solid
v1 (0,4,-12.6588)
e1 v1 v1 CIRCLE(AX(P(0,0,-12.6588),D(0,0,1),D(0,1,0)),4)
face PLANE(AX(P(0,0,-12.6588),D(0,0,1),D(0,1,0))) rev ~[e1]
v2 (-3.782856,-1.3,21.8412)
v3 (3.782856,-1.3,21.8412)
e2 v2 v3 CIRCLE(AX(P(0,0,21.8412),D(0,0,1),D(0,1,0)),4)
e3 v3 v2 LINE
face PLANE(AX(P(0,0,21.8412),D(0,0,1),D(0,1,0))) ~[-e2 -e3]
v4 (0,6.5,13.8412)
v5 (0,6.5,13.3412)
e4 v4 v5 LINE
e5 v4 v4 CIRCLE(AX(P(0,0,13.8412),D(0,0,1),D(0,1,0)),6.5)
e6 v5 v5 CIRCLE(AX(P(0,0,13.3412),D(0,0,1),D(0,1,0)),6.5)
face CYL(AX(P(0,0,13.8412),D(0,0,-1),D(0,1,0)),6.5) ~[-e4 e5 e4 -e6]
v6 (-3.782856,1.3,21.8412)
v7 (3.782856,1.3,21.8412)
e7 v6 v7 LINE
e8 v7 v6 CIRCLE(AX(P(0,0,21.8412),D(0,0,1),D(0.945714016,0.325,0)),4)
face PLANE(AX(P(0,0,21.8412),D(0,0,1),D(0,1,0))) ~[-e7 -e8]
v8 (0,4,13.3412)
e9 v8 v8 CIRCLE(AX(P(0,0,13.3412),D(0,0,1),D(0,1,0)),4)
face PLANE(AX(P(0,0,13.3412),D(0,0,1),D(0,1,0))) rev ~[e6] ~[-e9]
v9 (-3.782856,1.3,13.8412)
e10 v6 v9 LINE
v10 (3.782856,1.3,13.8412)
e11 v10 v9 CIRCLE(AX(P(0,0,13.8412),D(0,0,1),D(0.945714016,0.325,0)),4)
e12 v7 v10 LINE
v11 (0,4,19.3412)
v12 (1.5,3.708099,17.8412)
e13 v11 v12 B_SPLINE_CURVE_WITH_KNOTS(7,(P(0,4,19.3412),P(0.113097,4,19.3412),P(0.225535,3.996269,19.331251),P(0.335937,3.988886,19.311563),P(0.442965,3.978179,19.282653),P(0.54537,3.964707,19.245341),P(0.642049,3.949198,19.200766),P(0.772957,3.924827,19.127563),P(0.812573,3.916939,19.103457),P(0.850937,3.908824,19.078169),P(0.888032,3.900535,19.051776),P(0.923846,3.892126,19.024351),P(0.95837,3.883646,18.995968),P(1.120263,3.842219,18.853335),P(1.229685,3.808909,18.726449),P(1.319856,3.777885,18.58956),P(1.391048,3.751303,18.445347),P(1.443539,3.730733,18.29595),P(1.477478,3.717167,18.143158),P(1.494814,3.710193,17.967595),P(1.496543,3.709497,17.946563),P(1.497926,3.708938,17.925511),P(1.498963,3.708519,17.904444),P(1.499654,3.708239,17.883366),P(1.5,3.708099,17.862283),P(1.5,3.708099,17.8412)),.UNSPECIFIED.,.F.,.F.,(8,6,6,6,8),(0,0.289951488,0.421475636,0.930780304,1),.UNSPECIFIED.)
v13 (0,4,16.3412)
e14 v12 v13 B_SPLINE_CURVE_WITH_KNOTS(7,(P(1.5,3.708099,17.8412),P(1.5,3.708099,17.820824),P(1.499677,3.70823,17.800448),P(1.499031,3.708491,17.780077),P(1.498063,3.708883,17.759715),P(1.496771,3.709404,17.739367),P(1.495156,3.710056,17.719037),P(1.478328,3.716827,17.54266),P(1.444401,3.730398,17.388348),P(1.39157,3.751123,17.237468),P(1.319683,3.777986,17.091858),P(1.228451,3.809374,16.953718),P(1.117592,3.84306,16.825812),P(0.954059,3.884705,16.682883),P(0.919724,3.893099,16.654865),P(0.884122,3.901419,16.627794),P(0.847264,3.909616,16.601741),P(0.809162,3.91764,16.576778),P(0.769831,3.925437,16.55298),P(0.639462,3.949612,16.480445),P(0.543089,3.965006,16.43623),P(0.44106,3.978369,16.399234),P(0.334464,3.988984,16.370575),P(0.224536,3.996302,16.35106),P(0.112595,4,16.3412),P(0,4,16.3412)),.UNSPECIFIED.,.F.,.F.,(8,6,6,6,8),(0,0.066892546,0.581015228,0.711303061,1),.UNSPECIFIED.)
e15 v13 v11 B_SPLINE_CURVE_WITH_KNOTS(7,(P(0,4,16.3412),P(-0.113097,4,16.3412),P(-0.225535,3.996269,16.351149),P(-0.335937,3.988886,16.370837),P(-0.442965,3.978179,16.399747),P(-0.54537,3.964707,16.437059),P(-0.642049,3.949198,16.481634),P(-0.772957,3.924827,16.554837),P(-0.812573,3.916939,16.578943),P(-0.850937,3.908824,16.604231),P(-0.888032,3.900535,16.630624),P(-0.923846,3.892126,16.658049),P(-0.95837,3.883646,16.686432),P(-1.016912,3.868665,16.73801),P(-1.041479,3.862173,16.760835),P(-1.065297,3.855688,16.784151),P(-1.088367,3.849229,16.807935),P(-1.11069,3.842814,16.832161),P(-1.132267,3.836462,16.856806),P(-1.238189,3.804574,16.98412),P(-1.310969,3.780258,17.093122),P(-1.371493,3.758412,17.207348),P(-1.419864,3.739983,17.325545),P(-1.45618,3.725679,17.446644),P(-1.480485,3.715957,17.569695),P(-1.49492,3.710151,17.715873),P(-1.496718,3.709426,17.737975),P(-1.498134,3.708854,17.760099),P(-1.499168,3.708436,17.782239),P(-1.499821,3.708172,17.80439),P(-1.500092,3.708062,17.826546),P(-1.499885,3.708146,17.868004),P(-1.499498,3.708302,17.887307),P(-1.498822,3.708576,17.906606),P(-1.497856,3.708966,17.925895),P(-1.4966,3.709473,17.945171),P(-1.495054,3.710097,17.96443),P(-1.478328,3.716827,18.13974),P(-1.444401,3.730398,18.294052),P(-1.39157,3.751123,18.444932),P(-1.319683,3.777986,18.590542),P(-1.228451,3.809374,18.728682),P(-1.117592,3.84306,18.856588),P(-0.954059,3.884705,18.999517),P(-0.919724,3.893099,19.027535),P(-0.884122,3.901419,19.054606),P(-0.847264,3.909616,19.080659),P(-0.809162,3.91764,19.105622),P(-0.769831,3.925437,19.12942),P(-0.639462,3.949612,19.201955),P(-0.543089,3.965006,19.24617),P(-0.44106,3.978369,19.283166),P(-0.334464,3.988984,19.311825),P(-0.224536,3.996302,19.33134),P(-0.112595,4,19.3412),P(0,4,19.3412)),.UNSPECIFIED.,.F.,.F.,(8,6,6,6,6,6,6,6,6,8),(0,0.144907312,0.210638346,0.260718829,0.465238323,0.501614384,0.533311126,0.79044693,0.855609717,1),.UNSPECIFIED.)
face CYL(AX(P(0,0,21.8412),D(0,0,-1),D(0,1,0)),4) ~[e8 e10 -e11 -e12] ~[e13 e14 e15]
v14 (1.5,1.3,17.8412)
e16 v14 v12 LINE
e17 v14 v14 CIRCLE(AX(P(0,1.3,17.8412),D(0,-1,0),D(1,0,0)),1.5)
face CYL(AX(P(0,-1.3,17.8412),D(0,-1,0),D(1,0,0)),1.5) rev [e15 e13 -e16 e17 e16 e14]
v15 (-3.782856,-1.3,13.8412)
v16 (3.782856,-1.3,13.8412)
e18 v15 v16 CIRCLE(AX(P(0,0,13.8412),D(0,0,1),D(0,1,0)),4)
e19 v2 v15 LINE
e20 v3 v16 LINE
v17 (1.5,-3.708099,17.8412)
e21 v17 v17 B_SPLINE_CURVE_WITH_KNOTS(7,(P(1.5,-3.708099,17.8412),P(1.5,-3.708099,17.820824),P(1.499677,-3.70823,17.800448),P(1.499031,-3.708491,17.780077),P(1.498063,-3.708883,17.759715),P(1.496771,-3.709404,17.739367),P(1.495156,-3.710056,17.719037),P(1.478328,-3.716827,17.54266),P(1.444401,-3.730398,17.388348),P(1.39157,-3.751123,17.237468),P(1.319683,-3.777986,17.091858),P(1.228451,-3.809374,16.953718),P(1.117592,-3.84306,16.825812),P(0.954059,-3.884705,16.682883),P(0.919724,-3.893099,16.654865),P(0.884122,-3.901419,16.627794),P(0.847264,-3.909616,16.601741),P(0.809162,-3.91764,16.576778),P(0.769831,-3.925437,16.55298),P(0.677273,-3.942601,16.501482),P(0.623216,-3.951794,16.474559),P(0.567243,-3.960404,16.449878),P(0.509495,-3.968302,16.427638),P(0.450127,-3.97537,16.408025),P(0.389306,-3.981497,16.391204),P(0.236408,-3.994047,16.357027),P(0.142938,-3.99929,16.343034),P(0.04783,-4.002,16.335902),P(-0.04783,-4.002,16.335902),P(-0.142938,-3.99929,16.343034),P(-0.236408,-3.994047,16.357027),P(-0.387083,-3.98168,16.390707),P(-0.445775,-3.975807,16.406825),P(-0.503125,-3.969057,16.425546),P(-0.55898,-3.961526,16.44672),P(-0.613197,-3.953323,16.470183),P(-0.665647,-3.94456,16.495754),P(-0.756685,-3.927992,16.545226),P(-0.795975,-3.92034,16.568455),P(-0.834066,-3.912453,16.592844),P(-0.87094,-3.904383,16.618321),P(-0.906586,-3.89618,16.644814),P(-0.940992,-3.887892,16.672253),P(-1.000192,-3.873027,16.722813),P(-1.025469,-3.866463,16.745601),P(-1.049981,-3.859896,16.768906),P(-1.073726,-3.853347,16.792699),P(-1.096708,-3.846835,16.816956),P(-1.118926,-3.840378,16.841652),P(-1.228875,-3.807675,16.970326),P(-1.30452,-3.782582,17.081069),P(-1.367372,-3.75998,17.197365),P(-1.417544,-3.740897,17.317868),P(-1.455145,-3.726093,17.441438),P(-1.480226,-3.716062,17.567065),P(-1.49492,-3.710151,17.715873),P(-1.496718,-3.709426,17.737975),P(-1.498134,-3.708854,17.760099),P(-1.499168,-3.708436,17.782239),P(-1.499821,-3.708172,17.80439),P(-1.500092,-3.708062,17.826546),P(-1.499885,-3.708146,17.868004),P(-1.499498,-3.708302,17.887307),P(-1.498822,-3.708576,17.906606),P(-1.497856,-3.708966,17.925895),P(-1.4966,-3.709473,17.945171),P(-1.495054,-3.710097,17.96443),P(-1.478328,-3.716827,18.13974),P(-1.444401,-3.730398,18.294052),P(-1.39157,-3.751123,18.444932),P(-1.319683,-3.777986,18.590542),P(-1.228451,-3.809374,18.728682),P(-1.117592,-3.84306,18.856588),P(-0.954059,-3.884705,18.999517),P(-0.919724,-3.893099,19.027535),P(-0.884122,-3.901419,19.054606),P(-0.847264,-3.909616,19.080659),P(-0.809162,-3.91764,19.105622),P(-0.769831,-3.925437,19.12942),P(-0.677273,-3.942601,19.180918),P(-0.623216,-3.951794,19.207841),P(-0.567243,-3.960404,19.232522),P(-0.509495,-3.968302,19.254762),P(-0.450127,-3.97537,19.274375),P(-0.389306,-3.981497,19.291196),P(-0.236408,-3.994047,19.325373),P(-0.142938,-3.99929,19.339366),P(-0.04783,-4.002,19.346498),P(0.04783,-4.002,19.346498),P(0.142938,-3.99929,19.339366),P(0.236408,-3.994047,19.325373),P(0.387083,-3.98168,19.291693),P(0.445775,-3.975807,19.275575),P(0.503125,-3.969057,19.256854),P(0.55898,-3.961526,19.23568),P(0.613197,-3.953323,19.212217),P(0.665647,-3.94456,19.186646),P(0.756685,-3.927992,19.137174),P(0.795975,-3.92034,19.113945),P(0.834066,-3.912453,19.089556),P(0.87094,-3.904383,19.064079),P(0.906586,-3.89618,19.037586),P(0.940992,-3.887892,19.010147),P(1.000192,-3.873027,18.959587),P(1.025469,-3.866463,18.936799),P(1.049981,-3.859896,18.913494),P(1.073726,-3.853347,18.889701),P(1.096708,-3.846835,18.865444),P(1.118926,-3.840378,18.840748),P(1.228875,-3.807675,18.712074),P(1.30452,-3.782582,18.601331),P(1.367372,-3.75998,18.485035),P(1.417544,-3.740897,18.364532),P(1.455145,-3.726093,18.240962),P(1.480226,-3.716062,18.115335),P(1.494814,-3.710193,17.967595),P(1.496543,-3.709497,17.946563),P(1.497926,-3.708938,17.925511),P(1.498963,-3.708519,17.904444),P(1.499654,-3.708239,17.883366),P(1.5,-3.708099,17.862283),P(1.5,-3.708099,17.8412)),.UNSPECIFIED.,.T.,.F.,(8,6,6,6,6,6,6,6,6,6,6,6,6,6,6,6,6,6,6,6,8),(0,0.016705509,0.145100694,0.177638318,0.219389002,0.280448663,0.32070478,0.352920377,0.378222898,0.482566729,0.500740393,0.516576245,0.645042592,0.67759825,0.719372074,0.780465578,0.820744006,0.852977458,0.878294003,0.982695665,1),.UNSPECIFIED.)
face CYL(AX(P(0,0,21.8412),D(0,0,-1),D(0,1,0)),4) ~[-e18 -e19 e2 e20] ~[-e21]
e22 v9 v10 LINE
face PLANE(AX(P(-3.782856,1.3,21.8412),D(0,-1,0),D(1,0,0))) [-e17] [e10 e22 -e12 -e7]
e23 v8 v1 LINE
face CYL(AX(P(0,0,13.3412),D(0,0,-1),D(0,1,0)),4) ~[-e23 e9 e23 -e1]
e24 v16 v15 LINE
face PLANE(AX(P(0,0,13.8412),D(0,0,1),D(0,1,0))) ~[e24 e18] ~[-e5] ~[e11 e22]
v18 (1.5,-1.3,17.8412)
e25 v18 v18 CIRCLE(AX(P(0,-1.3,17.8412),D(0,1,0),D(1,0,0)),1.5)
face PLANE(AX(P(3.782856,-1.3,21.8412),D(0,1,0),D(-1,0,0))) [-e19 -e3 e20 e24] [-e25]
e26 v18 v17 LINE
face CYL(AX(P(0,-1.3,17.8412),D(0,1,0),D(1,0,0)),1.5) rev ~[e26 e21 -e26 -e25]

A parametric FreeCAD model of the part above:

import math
import FreeCAD as App
import Part
import Sketcher

doc = App.newDocument("Part")
body = doc.addObject("PartDesign::Body", "Body")

# Sketch on YZ plane
sketch1 = doc.addObject("Sketcher::SketchObject", "Sketch")
body.addObject(sketch1)
sketch1.AttachmentSupport = (doc.YZ_Plane, [""])
sketch1.MapMode = "FlatFace"
sketch1.addGeometry(Part.LineSegment(App.Vector(4, 21.8, 0), App.Vector(0, 21.8, 0)), False)
sketch1.addGeometry(Part.LineSegment(App.Vector(0, 21.8, 0), App.Vector(0, -12.7, 0)), False)
sketch1.addGeometry(Part.LineSegment(App.Vector(0, -12.7, 0), App.Vector(4, -12.7, 0)), False)
sketch1.addGeometry(Part.LineSegment(App.Vector(4, -12.7, 0), App.Vector(4, 13.3, 0)), False)
sketch1.addGeometry(Part.LineSegment(App.Vector(4, 13.3, 0), App.Vector(6.5, 13.3, 0)), False)
sketch1.addGeometry(Part.LineSegment(App.Vector(6.5, 13.3, 0), App.Vector(6.5, 13.8, 0)), False)
sketch1.addGeometry(Part.LineSegment(App.Vector(6.5, 13.8, 0), App.Vector(4, 13.8, 0)), False)
sketch1.addGeometry(Part.LineSegment(App.Vector(4, 13.8, 0), App.Vector(4, 21.8, 0)), False)
sketch1.addConstraint(Sketcher.Constraint("Coincident", 0, 2, 1, 1))
sketch1.addConstraint(Sketcher.Constraint("Coincident", 1, 2, 2, 1))
sketch1.addConstraint(Sketcher.Constraint("Coincident", 2, 2, 3, 1))
sketch1.addConstraint(Sketcher.Constraint("Coincident", 3, 2, 4, 1))
sketch1.addConstraint(Sketcher.Constraint("Coincident", 4, 2, 5, 1))
sketch1.addConstraint(Sketcher.Constraint("Coincident", 5, 2, 6, 1))
sketch1.addConstraint(Sketcher.Constraint("Coincident", 6, 2, 7, 1))
sketch1.addConstraint(Sketcher.Constraint("Coincident", 7, 2, 0, 1))
sketch1.addConstraint(Sketcher.Constraint("Horizontal", 0))
sketch1.addConstraint(Sketcher.Constraint("Vertical", 1))
sketch1.addConstraint(Sketcher.Constraint("Horizontal", 2))
sketch1.addConstraint(Sketcher.Constraint("Vertical", 3))
sketch1.addConstraint(Sketcher.Constraint("Horizontal", 4))
sketch1.addConstraint(Sketcher.Constraint("Vertical", 5))
sketch1.addConstraint(Sketcher.Constraint("Horizontal", 6))
sketch1.addConstraint(Sketcher.Constraint("Vertical", 7))
sketch1.addConstraint(Sketcher.Constraint("PointOnObject", 0, 2, -2))
sketch1.addConstraint(Sketcher.Constraint("Vertical", 3, 2, 6, 2))
sketch1.addConstraint(Sketcher.Constraint("DistanceX", 0, 2, 0, 1, 4.0))
sketch1.addConstraint(Sketcher.Constraint("DistanceY", 3, 1, 3, 2, 26.0))
sketch1.addConstraint(Sketcher.Constraint("DistanceY", 7, 1, 7, 2, 8.0))
sketch1.addConstraint(Sketcher.Constraint("DistanceX", 4, 1, 4, 2, 2.5))
sketch1.addConstraint(Sketcher.Constraint("DistanceY", 5, 1, 5, 2, 0.5))
sketch1.addConstraint(Sketcher.Constraint("DistanceY", -1, 1, 0, 2, 21.8412))
revolution = doc.addObject("PartDesign::Revolution", "Revolution")
body.addObject(revolution)
revolution.Profile = sketch1
revolution.ReferenceAxis = (sketch1, ["V_Axis"])
revolution.Angle = 360

# Sketch on XY plane
sketch2 = doc.addObject("Sketcher::SketchObject", "Sketch001")
body.addObject(sketch2)
sketch2.AttachmentSupport = (doc.XY_Plane, [""])
sketch2.MapMode = "FlatFace"
sketch2.AttachmentOffset = App.Placement(App.Vector(0, 0, 21.8412), App.Rotation())
sketch2.addGeometry(Part.LineSegment(App.Vector(-3.8, -1.3, 0), App.Vector(3.8, -1.3, 0)), False)
sketch2.addGeometry(Part.ArcOfCircle(Part.Circle(App.Vector(0, 0, 0), App.Vector(0, 0, 1), 4), math.radians(-19), math.radians(19)), False)
sketch2.addGeometry(Part.LineSegment(App.Vector(3.8, 1.3, 0), App.Vector(-3.8, 1.3, 0)), False)
sketch2.addGeometry(Part.ArcOfCircle(Part.Circle(App.Vector(0, 0, 0), App.Vector(0, 0, 1), 4), math.radians(161), math.radians(199)), False)
sketch2.addConstraint(Sketcher.Constraint("Coincident", 0, 2, 1, 1))
sketch2.addConstraint(Sketcher.Constraint("Coincident", 1, 2, 2, 1))
sketch2.addConstraint(Sketcher.Constraint("Coincident", 2, 2, 3, 1))
sketch2.addConstraint(Sketcher.Constraint("Coincident", 3, 2, 0, 1))
sketch2.addConstraint(Sketcher.Constraint("Horizontal", 0))
sketch2.addConstraint(Sketcher.Constraint("Horizontal", 2))
sketch2.addConstraint(Sketcher.Constraint("Coincident", 1, 3, -1, 1))
sketch2.addConstraint(Sketcher.Constraint("Coincident", 3, 3, -1, 1))
sketch2.addConstraint(Sketcher.Constraint("Equal", 1, 3))
sketch2.addConstraint(Sketcher.Constraint("Vertical", 0, 2, 1, 2))
sketch2.addConstraint(Sketcher.Constraint("Radius", 1, 4.0))
sketch2.addConstraint(Sketcher.Constraint("DistanceY", 0, 2, 1, 2, 2.6))
pocket1 = doc.addObject("PartDesign::Pocket", "Pocket")
body.addObject(pocket1)
pocket1.Profile = sketch2
pocket1.Length = 8

# Sketch on XZ plane
sketch3 = doc.addObject("Sketcher::SketchObject", "Sketch002")
body.addObject(sketch3)
sketch3.AttachmentSupport = (doc.XZ_Plane, [""])
sketch3.MapMode = "FlatFace"
sketch3.AttachmentOffset = App.Placement(App.Vector(0, 0, 1.3), App.Rotation())
sketch3.addGeometry(Part.Circle(App.Vector(0, 17.8, 0), App.Vector(0, 0, 1), 1.5), False)
sketch3.addConstraint(Sketcher.Constraint("PointOnObject", 0, 3, -2))
sketch3.addConstraint(Sketcher.Constraint("Diameter", 0, 3.0))
sketch3.addConstraint(Sketcher.Constraint("DistanceY", -1, 1, 0, 3, 17.8412))
pocket2 = doc.addObject("PartDesign::Pocket", "Pocket001")
body.addObject(pocket2)
pocket2.Profile = sketch3
pocket2.Type = "ThroughAll"
pocket2.Midplane = True

doc.recompute()
